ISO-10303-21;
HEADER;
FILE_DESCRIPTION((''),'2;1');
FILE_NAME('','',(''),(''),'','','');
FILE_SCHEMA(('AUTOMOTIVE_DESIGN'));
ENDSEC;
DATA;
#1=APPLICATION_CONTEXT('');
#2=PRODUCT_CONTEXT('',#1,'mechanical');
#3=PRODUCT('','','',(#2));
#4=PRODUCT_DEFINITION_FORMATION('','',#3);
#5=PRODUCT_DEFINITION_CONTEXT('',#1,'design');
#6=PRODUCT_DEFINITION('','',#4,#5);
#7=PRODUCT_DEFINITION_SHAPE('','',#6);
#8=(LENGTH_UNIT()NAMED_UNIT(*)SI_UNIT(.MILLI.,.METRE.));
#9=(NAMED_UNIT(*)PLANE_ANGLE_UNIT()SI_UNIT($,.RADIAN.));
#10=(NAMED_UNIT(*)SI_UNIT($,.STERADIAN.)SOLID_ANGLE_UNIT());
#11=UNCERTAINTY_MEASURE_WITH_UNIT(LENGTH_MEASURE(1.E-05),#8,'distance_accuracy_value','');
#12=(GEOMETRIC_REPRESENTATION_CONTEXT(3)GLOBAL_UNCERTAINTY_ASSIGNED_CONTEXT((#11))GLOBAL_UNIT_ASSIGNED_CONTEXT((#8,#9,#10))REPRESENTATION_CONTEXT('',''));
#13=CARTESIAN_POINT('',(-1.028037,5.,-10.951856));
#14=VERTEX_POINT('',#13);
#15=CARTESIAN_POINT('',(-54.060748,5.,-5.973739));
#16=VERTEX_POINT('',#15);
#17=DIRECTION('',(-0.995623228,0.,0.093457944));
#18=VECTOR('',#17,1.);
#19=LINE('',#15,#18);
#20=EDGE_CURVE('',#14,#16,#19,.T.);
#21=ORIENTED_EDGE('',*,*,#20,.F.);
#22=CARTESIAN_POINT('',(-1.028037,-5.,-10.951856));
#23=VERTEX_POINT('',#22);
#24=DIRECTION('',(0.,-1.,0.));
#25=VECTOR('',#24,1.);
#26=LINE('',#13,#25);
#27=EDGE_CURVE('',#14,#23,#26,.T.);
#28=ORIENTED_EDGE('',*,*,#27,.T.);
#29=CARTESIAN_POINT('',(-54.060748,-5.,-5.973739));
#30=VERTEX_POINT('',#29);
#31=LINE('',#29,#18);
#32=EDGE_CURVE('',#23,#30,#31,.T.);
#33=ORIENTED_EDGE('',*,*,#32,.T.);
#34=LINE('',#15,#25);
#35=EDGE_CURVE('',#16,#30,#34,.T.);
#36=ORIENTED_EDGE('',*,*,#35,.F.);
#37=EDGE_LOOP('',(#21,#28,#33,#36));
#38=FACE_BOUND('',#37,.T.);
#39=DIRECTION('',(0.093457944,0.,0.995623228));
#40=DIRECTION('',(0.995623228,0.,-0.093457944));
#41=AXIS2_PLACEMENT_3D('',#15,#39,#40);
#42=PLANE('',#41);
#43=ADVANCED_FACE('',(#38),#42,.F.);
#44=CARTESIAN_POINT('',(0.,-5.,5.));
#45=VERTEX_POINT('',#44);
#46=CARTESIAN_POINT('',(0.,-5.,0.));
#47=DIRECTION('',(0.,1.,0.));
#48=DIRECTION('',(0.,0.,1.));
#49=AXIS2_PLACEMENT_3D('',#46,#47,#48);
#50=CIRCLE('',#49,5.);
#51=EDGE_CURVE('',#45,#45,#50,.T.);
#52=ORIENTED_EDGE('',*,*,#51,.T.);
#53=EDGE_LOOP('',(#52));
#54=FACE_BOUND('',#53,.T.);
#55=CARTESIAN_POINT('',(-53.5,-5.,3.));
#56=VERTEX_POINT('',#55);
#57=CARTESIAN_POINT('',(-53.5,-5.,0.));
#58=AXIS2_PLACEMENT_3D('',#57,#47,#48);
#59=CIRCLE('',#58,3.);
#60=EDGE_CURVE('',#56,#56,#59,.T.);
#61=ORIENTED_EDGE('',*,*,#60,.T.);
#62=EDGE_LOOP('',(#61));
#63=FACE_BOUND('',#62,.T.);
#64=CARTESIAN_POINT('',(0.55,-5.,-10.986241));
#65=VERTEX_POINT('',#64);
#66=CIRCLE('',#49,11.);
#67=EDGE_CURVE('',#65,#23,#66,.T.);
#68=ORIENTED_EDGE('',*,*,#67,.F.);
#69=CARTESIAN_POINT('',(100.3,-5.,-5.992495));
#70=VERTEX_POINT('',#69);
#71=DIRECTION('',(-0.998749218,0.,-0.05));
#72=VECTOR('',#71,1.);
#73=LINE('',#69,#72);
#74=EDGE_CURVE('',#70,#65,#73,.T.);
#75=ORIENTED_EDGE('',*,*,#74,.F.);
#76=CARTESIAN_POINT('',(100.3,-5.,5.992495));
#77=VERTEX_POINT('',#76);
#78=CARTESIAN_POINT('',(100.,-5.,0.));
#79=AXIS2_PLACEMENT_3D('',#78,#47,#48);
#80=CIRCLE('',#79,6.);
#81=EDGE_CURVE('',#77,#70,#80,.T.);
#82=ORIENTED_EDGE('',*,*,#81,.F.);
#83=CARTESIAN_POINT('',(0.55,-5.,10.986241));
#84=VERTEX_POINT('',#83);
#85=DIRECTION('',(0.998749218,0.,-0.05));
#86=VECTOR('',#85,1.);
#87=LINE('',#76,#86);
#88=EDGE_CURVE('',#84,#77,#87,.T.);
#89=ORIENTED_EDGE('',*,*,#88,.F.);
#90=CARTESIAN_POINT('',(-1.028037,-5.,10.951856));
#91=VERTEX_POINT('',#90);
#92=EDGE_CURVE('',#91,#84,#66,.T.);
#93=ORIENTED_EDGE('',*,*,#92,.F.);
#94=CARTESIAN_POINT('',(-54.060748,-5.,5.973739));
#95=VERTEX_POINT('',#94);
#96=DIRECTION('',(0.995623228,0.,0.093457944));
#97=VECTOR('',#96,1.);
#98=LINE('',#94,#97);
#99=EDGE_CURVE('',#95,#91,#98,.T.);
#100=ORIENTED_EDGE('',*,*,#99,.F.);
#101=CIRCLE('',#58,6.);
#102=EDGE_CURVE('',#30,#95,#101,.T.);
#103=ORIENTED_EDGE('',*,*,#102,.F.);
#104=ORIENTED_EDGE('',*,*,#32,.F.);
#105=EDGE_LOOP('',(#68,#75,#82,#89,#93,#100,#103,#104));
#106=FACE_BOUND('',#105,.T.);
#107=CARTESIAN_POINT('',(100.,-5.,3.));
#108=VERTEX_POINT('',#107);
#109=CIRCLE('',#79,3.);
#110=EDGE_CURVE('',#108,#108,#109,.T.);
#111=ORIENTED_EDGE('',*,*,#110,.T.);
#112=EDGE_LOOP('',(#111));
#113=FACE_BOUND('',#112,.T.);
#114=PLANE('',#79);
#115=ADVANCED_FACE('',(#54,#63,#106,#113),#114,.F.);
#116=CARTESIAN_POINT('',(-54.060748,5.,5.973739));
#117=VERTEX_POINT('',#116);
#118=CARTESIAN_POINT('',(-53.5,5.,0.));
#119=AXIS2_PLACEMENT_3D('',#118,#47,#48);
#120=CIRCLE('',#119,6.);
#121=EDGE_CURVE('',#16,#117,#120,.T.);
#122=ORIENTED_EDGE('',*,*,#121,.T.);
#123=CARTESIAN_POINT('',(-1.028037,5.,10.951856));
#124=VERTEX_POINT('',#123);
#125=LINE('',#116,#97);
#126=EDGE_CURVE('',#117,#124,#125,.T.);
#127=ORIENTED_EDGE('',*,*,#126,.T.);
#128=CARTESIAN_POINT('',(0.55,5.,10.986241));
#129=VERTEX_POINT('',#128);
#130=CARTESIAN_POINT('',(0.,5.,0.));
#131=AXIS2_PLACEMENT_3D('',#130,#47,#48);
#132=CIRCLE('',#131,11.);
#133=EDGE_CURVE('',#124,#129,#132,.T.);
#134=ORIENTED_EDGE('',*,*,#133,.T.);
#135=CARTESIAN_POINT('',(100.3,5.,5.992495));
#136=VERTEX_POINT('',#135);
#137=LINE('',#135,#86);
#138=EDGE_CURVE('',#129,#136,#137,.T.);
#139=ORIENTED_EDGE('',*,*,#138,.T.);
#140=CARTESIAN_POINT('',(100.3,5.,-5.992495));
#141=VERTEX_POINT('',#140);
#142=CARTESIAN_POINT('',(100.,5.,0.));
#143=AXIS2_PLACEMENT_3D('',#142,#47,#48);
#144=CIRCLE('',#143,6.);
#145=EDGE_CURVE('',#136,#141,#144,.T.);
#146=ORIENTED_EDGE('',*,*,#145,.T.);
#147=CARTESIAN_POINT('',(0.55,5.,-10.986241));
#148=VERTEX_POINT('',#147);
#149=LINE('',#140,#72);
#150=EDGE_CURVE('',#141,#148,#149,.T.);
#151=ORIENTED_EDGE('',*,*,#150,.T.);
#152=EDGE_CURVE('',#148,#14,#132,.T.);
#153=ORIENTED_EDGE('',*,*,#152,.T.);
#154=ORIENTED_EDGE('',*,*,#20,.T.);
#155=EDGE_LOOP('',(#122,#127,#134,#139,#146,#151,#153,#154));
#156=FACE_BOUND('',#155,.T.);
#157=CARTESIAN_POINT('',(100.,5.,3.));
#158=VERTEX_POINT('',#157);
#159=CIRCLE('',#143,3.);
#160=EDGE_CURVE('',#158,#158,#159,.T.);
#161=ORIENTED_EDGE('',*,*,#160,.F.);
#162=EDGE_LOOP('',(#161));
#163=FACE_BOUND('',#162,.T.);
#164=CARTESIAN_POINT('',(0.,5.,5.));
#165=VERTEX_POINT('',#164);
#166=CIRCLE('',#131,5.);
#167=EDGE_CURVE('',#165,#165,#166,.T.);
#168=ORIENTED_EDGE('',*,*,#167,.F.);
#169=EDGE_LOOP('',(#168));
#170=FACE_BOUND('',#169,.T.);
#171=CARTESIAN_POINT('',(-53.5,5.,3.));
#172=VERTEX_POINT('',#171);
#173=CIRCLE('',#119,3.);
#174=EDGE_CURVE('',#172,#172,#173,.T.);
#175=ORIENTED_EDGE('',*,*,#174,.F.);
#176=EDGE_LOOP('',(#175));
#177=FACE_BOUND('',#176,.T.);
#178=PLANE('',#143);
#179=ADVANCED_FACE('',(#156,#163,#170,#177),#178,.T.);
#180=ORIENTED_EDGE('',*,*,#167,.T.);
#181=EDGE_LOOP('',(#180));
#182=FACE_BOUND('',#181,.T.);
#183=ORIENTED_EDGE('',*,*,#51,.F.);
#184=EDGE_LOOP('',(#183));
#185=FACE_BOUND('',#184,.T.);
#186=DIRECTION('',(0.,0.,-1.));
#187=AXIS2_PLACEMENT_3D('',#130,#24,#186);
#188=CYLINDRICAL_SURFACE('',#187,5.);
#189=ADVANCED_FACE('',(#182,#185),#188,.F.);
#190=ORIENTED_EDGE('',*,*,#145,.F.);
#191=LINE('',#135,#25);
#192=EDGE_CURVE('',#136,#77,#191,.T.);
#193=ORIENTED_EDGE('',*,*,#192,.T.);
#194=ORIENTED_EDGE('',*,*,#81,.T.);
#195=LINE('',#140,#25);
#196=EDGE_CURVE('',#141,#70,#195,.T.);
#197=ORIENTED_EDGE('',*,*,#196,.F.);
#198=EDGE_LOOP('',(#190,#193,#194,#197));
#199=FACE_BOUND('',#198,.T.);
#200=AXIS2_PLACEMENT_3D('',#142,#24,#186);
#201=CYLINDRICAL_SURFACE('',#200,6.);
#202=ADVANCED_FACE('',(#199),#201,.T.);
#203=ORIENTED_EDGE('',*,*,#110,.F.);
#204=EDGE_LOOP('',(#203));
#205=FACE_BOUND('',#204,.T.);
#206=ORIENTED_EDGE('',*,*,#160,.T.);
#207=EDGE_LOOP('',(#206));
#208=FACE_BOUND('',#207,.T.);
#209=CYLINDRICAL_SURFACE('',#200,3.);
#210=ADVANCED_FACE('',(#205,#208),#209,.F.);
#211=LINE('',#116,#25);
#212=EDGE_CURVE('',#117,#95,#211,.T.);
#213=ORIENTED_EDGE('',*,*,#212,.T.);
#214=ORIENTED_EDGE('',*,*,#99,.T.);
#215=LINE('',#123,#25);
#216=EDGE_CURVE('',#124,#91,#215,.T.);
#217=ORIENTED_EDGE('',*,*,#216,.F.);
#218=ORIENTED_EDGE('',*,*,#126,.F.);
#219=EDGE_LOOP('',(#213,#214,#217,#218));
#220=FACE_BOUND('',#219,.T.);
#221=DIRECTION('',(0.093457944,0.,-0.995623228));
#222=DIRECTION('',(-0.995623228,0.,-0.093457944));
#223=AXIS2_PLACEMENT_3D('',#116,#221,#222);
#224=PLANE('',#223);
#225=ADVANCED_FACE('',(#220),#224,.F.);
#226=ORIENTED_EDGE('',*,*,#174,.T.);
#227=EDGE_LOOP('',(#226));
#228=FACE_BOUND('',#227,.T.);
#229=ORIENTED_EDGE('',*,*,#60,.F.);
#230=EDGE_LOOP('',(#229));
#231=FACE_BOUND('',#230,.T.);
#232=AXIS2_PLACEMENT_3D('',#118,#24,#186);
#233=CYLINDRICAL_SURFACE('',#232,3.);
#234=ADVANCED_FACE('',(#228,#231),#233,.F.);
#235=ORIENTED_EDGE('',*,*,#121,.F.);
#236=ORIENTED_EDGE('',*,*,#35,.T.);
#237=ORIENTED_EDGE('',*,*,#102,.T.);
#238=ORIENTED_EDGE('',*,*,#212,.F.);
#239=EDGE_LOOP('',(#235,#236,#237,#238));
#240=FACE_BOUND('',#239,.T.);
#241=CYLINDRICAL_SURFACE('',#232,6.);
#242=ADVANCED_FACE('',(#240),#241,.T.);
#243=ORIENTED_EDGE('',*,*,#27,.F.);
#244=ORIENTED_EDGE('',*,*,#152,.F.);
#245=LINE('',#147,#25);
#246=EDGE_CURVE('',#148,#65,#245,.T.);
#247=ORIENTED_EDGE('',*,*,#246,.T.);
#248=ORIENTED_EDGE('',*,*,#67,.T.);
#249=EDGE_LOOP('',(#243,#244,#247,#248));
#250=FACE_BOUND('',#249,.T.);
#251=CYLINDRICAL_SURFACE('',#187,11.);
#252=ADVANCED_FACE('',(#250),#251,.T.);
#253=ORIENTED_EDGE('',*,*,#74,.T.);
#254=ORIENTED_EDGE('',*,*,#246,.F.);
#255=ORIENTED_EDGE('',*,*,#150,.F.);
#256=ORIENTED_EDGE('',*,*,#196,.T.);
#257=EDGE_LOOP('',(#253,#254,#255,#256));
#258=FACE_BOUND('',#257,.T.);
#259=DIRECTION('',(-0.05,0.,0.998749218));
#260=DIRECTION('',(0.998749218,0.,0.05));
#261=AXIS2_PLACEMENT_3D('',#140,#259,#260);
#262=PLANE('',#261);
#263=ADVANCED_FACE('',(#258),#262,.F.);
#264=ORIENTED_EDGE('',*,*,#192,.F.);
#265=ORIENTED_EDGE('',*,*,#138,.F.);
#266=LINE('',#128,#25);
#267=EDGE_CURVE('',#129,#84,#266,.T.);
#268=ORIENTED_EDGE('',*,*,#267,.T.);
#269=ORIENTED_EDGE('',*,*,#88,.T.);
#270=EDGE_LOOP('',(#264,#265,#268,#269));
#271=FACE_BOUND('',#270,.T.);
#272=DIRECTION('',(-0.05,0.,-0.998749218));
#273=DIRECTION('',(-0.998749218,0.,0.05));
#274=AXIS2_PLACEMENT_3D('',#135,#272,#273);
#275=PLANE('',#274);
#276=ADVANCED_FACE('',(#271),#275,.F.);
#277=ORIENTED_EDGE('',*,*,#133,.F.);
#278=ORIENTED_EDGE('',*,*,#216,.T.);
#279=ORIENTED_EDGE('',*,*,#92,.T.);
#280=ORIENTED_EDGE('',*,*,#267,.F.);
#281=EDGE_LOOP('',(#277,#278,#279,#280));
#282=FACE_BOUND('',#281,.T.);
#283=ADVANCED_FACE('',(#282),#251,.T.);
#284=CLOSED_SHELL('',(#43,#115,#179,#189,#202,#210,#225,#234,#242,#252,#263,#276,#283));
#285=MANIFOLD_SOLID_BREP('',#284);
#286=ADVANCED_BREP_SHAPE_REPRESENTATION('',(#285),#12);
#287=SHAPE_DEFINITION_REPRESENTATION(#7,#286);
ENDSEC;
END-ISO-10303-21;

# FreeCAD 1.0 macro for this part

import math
import FreeCAD as App
import Part
import Sketcher
Q = App.Units.Quantity

doc = App.newDocument("Part")
body = doc.addObject("PartDesign::Body", "Body")

sketch1 = body.newObject("Sketcher::SketchObject", "Sketch")
sketch1.AttachmentSupport = (doc.getObject("XZ_Plane"), [""])
sketch1.MapMode = "FlatFace"
sketch1.addGeometry([
    Part.LineSegment(App.Vector(-1, -11, 0), App.Vector(-54.1, -6, 0)),
    Part.ArcOfCircle(Part.Circle(App.Vector(-53.5, 0, 0), App.Vector(0, 0, 1), 6), math.radians(95), math.radians(265)),
    Part.LineSegment(App.Vector(-54.1, 6, 0), App.Vector(-1, 11, 0)),
    Part.ArcOfCircle(Part.Circle(App.Vector(0, 0, 0), App.Vector(0, 0, 1), 11), math.radians(87.13), math.radians(95.36)),
    Part.LineSegment(App.Vector(0.6, 11, 0), App.Vector(100.3, 6, 0)),
    Part.ArcOfCircle(Part.Circle(App.Vector(100, 0, 0), App.Vector(0, 0, 1), 6), math.radians(-87), math.radians(87)),
    Part.LineSegment(App.Vector(100.3, -6, 0), App.Vector(0.6, -11, 0)),
    Part.ArcOfCircle(Part.Circle(App.Vector(0, 0, 0), App.Vector(0, 0, 1), 11), math.radians(-95.36), math.radians(-87.13)),
    Part.Circle(App.Vector(100, 0, 0), App.Vector(0, 0, 1), 3),
    Part.Circle(App.Vector(0, 0, 0), App.Vector(0, 0, 1), 5),
    Part.Circle(App.Vector(-53.5, 0, 0), App.Vector(0, 0, 1), 3),
], False)
sketch1.addConstraint([
    Sketcher.Constraint("Tangent", 0, 2, 1, 2),
    Sketcher.Constraint("Tangent", 1, 1, 2, 1),
    Sketcher.Constraint("Tangent", 2, 2, 3, 2),
    Sketcher.Constraint("Tangent", 3, 1, 4, 1),
    Sketcher.Constraint("Tangent", 4, 2, 5, 2),
    Sketcher.Constraint("Tangent", 5, 1, 6, 1),
    Sketcher.Constraint("Tangent", 6, 2, 7, 2),
    Sketcher.Constraint("Tangent", 7, 1, 0, 1),
    Sketcher.Constraint("Coincident", 3, 3, -1, 1),
    Sketcher.Constraint("Coincident", 7, 3, -1, 1),
    Sketcher.Constraint("Coincident", 9, 3, -1, 1),
    Sketcher.Constraint("Coincident", 8, 3, 5, 3),
    Sketcher.Constraint("Coincident", 10, 3, 1, 3),
    Sketcher.Constraint("Equal", 1, 5),
    Sketcher.Constraint("Equal", 3, 7),
    Sketcher.Constraint("Equal", 8, 10),
    Sketcher.Constraint("PointOnObject", 1, 3, -1),
    Sketcher.Constraint("PointOnObject", 5, 3, -1),
    Sketcher.Constraint("Diameter", 8, Q("6 mm")),
    Sketcher.Constraint("Diameter", 9, Q("10 mm")),
    Sketcher.Constraint("Radius", 1, Q("6 mm")),
    Sketcher.Constraint("Radius", 3, Q("11 mm")),
    Sketcher.Constraint("DistanceX", -1, 1, 5, 3, Q("100 mm")),
    Sketcher.Constraint("DistanceX", 1, 3, -1, 1, Q("53.5 mm")),
])
pad1 = body.newObject("PartDesign::Pad", "Pad")
pad1.Profile = sketch1
pad1.Length = 10
pad1.Midplane = True

doc.recompute()
